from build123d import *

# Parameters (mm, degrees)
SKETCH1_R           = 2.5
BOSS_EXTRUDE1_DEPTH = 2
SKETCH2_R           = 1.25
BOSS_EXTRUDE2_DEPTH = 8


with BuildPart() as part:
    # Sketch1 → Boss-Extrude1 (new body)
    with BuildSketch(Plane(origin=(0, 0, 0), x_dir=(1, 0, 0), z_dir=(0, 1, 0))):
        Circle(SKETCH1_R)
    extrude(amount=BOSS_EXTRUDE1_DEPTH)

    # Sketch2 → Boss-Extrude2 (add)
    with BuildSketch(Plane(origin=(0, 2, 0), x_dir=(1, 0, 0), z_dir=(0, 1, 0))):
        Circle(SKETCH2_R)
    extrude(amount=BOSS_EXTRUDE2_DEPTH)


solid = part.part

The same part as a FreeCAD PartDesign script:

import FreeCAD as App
import Part
import Sketcher

V = App.Vector

doc = App.newDocument("Part")
params = doc.addObject("Spreadsheet::Sheet", "Params")
for row, (alias, value) in enumerate([
    ("sketch1_diameter", "5 mm"),
    ("pad1_length", "2 mm"),
    ("sketch2_diameter", "2.5 mm"),
    ("pad2_length", "8 mm"),
], start=1):
    params.set(f"A{row}", alias)
    params.set(f"B{row}", "=" + value)
    params.setAlias(f"B{row}", alias)

body = doc.addObject("PartDesign::Body", "Body")

# Sketch on XZ plane
sketch1 = body.newObject("Sketcher::SketchObject", "Sketch")
sketch1.AttachmentSupport = (doc.getObject("XZ_Plane"), [""])
sketch1.MapMode = "FlatFace"
sketch1.addGeometry(Part.Circle(V(0, 0, 0), V(0, 0, 1), 2.5), False)
sketch1.addConstraint([
    Sketcher.Constraint("Coincident", 0, 3, -1, 1),
    Sketcher.Constraint("Diameter", 0, 5.0),
])
sketch1.setExpression("Constraints[1]", "Params.sketch1_diameter")
pad1 = body.newObject("PartDesign::Pad", "Pad")
pad1.Profile = sketch1
pad1.setExpression("Length", "Params.pad1_length")
pad1.Reversed = True

# Sketch on XZ plane
sketch2 = body.newObject("Sketcher::SketchObject", "Sketch001")
sketch2.AttachmentSupport = (doc.getObject("XZ_Plane"), [""])
sketch2.MapMode = "FlatFace"
sketch2.AttachmentOffset = App.Placement(V(0, 0, -2), App.Rotation())
sketch2.addGeometry(Part.Circle(V(0, 0, 0), V(0, 0, 1), 1.2), False)
sketch2.addConstraint([
    Sketcher.Constraint("Coincident", 0, 3, -1, 1),
    Sketcher.Constraint("Diameter", 0, 2.5),
])
sketch2.setExpression("Constraints[1]", "Params.sketch2_diameter")
pad2 = body.newObject("PartDesign::Pad", "Pad001")
pad2.Profile = sketch2
pad2.setExpression("Length", "Params.pad2_length")
pad2.Reversed = True

doc.recompute()
